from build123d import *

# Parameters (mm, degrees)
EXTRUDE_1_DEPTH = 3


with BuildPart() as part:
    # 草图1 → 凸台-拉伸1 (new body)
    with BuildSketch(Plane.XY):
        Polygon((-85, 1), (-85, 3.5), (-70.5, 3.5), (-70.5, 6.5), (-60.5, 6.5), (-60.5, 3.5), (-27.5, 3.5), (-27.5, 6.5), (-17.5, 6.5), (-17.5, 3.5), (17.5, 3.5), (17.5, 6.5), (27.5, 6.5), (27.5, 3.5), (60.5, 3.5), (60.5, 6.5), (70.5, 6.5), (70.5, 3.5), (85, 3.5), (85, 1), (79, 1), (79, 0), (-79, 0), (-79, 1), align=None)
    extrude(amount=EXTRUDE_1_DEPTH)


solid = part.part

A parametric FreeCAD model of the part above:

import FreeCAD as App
import Part
import Sketcher
from FreeCAD import Vector
Q = App.Units.Quantity


def add_polygon(sketch, points):
    """Adds a closed chain of lines whose ends are joined by coincident constraints."""
    first, n = sketch.GeometryCount, len(points)
    for a, b in zip(points, points[1:] + points[:1]):
        sketch.addGeometry(Part.LineSegment(App.Vector(*a, 0), App.Vector(*b, 0)), False)
    for i in range(n):
        sketch.addConstraint(Sketcher.Constraint("Coincident", first + i, 2, first + (i + 1) % n, 1))

doc = App.newDocument("Part")
body = doc.addObject("PartDesign::Body", "Body")

sketch1 = body.newObject("Sketcher::SketchObject", "Sketch")
sketch1.AttachmentSupport = (doc.getObject("XY_Plane"), [""])
sketch1.MapMode = "FlatFace"
add_polygon(sketch1, [(-85, 3.5), (-85, 1), (-79, 1), (-79, 0), (79, 0), (79, 1), (85, 1), (85, 3.5), (70.5, 3.5), (70.5, 6.5), (60.5, 6.5), (60.5, 3.5), (27.5, 3.5), (27.5, 6.5), (17.5, 6.5), (17.5, 3.5), (-17.5, 3.5), (-17.5, 6.5), (-27.5, 6.5), (-27.5, 3.5), (-60.5, 3.5), (-60.5, 6.5), (-70.5, 6.5), (-70.5, 3.5)])
sketch1.addConstraint([
    Sketcher.Constraint("Vertical", 0),
    Sketcher.Constraint("Horizontal", 1),
    Sketcher.Constraint("Vertical", 2),
    Sketcher.Constraint("Horizontal", 3),
    Sketcher.Constraint("Vertical", 4),
    Sketcher.Constraint("Horizontal", 5),
    Sketcher.Constraint("Vertical", 6),
    Sketcher.Constraint("Horizontal", 7),
    Sketcher.Constraint("Vertical", 8),
    Sketcher.Constraint("Horizontal", 9),
    Sketcher.Constraint("Vertical", 10),
    Sketcher.Constraint("Horizontal", 11),
    Sketcher.Constraint("Vertical", 12),
    Sketcher.Constraint("Horizontal", 13),
    Sketcher.Constraint("Vertical", 14),
    Sketcher.Constraint("Horizontal", 15),
    Sketcher.Constraint("Vertical", 16),
    Sketcher.Constraint("Horizontal", 17),
    Sketcher.Constraint("Vertical", 18),
    Sketcher.Constraint("Horizontal", 19),
    Sketcher.Constraint("Vertical", 20),
    Sketcher.Constraint("Horizontal", 21),
    Sketcher.Constraint("Vertical", 22),
    Sketcher.Constraint("Horizontal", 23),
    Sketcher.Constraint("Symmetric", 2, 2, 3, 2, -1, 1),
    Sketcher.Constraint("Symmetric", 0, 2, 5, 2, -2),
    Sketcher.Constraint("Symmetric", 13, 2, 16, 2, -2),
    Sketcher.Constraint("Symmetric", 11, 2, 18, 2, -2),
    Sketcher.Constraint("Symmetric", 9, 2, 20, 2, -2),
    Sketcher.Constraint("Symmetric", 7, 2, 22, 2, -2),
    Sketcher.Constraint("Horizontal", 7, 2, 10, 2),
    Sketcher.Constraint("Horizontal", 9, 2, 12, 2),
    Sketcher.Constraint("Horizontal", 11, 2, 14, 2),
    Sketcher.Constraint("Equal", 9, 13),
    Sketcher.Constraint("DistanceX", 1, 1, 1, 2, Q("6 mm")),
    Sketcher.Constraint("DistanceX", 3, 1, 3, 2, Q("158 mm")),
    Sketcher.Constraint("DistanceX", 9, 2, 9, 1, Q("10 mm")),
    Sketcher.Constraint("DistanceX", 11, 2, 11, 1, Q("33 mm")),
    Sketcher.Constraint("DistanceX", 15, 2, 15, 1, Q("35 mm")),
    Sketcher.Constraint("DistanceY", 2, 2, 2, 1, Q("1 mm")),
    Sketcher.Constraint("DistanceY", 8, 1, 8, 2, Q("3 mm")),
    Sketcher.Constraint("DistanceY", 0, 2, 0, 1, Q("2.5 mm")),
])
pad1 = body.newObject("PartDesign::Pad", "Pad")
pad1.Profile = sketch1
pad1.Length = 3

doc.recompute()
